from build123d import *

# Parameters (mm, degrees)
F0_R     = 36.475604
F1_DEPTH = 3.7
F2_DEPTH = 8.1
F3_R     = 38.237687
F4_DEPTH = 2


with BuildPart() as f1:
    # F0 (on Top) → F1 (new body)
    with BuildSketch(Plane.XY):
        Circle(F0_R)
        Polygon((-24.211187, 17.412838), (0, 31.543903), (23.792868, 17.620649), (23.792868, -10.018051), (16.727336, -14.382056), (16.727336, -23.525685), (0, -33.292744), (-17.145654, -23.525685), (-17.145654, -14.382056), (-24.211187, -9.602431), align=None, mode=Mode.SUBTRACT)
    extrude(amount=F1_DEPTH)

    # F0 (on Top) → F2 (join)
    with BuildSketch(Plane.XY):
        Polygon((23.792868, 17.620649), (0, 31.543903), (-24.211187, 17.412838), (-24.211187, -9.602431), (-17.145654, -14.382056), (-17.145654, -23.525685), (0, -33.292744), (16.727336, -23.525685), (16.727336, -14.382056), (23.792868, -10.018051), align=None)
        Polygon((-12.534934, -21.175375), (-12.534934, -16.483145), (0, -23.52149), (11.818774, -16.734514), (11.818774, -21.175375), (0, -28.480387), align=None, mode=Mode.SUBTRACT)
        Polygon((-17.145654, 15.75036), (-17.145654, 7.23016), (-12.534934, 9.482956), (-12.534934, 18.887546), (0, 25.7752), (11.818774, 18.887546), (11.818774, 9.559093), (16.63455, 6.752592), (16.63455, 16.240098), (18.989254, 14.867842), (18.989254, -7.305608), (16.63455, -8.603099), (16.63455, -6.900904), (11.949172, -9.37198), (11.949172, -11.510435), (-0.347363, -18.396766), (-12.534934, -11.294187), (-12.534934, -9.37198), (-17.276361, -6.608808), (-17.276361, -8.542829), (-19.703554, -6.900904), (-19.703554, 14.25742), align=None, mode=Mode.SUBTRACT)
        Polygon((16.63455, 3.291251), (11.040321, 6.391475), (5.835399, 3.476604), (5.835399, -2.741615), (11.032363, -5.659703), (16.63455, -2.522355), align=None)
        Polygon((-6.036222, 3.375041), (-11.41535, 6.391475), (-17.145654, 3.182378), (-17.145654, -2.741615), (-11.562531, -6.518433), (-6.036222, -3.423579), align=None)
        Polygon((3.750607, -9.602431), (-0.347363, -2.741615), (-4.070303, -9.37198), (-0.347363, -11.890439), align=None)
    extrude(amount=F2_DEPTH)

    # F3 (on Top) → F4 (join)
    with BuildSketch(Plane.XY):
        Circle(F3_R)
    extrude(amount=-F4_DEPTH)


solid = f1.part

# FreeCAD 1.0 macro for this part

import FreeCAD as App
import Part
import Sketcher

V = App.Vector
Q = App.Units.Quantity

doc = App.newDocument("Part")
params = doc.addObject("Spreadsheet::Sheet", "Params")
for row, (alias, value) in enumerate([
    ("pad1_length", "3.7 mm"),
    ("pad2_length", "8.1 mm"),
    ("pad3_length", "2 mm"),
], start=1):
    params.set(f"A{row}", alias)
    params.set(f"B{row}", "=" + value)
    params.setAlias(f"B{row}", alias)

body = doc.addObject("PartDesign::Body", "Body")
body.AllowCompound = True

# Sketch on XY plane
sketch1 = body.newObject("Sketcher::SketchObject", "Sketch")
sketch1.AttachmentSupport = (doc.getObject("XY_Plane"), [""])
sketch1.MapMode = "FlatFace"
sketch1.addGeometry([
    Part.Circle(V(0, 0, 0), V(0, 0, 1), 36.475604),  # 0
    Part.LineSegment(V(-24.211187, -9.602431, 0), V(-24.211187, 17.412838, 0)),  # 1
    Part.LineSegment(V(-24.211187, 17.412838, 0), V(0, 31.543903, 0)),  # 2
    Part.LineSegment(V(0, 31.543903, 0), V(23.792868, 17.620649, 0)),  # 3
    Part.LineSegment(V(23.792868, 17.620649, 0), V(23.792868, -10.018051, 0)),  # 4
    Part.LineSegment(V(23.792868, -10.018051, 0), V(16.727336, -14.382056, 0)),  # 5
    Part.LineSegment(V(16.727336, -14.382056, 0), V(16.727336, -23.525685, 0)),  # 6
    Part.LineSegment(V(16.727336, -23.525685, 0), V(0, -33.292744, 0)),  # 7
    Part.LineSegment(V(0, -33.292744, 0), V(-17.145654, -23.525685, 0)),  # 8
    Part.LineSegment(V(-17.145654, -23.525685, 0), V(-17.145654, -14.382056, 0)),  # 9
    Part.LineSegment(V(-17.145654, -14.382056, 0), V(-24.211187, -9.602431, 0)),  # 10
], False)
sketch1.addConstraint([
    Sketcher.Constraint("Coincident", 1, 2, 2, 1),
    Sketcher.Constraint("Coincident", 2, 2, 3, 1),
    Sketcher.Constraint("Coincident", 3, 2, 4, 1),
    Sketcher.Constraint("Coincident", 4, 2, 5, 1),
    Sketcher.Constraint("Coincident", 5, 2, 6, 1),
    Sketcher.Constraint("Coincident", 6, 2, 7, 1),
    Sketcher.Constraint("Coincident", 7, 2, 8, 1),
    Sketcher.Constraint("Coincident", 8, 2, 9, 1),
    Sketcher.Constraint("Coincident", 9, 2, 10, 1),
    Sketcher.Constraint("Coincident", 10, 2, 1, 1),
    Sketcher.Constraint("Vertical", 1),
    Sketcher.Constraint("Vertical", 4),
    Sketcher.Constraint("Vertical", 6),
    Sketcher.Constraint("Vertical", 9),
    Sketcher.Constraint("Coincident", 0, 3, -1, 1),
    Sketcher.Constraint("PointOnObject", 2, 2, -2),
    Sketcher.Constraint("PointOnObject", 7, 2, -2),
    Sketcher.Constraint("Horizontal", 6, 2, 8, 2),
    Sketcher.Constraint("Horizontal", 5, 2, 9, 2),
    Sketcher.Constraint("Diameter", 0, Q("72.951208 mm")),
    Sketcher.Constraint("DistanceY", 4, 2, 4, 1, Q("27.6387 mm")),
    Sketcher.Constraint("DistanceY", 1, 1, 1, 2, Q("27.015269 mm")),
    Sketcher.Constraint("DistanceY", 6, 2, 6, 1, Q("9.143629 mm")),
    Sketcher.Constraint("Distance", 7, Q("19.37006 mm")),
    Sketcher.Constraint("DistanceY", -1, 1, 1, 2, Q("17.412838 mm")),
    Sketcher.Constraint("DistanceY", -1, 1, 3, 2, Q("17.620649 mm")),
    Sketcher.Constraint("DistanceX", 5, 2, 4, 2, Q("7.065532 mm")),
    Sketcher.Constraint("DistanceY", 5, 2, 2, 2, Q("45.925959 mm")),
    Sketcher.Constraint("DistanceY", 7, 2, 6, 2, Q("9.767059 mm")),
    Sketcher.Constraint("DistanceX", 8, 2, 6, 2, Q("33.87299 mm")),
    Sketcher.Constraint("Distance", 2, Q("28.033348 mm")),
    Sketcher.Constraint("Distance", 3, Q("27.567328 mm")),
])
pad1 = body.newObject("PartDesign::Pad", "Pad")
pad1.Profile = sketch1
pad1.setExpression("Length", "Params.pad1_length")

# Sketch on XY plane
sketch2 = body.newObject("Sketcher::SketchObject", "Sketch001")
sketch2.AttachmentSupport = (doc.getObject("XY_Plane"), [""])
sketch2.MapMode = "FlatFace"
sketch2.addGeometry([
    Part.LineSegment(V(23.792868, 17.620649, 0), V(0, 31.543903, 0)),  # 0
    Part.LineSegment(V(0, 31.543903, 0), V(-24.211187, 17.412838, 0)),  # 1
    Part.LineSegment(V(-24.211187, 17.412838, 0), V(-24.211187, -9.602431, 0)),  # 2
    Part.LineSegment(V(-24.211187, -9.602431, 0), V(-17.145654, -14.382056, 0)),  # 3
    Part.LineSegment(V(-17.145654, -14.382056, 0), V(-17.145654, -23.525685, 0)),  # 4
    Part.LineSegment(V(-17.145654, -23.525685, 0), V(0, -33.292744, 0)),  # 5
    Part.LineSegment(V(0, -33.292744, 0), V(16.727336, -23.525685, 0)),  # 6
    Part.LineSegment(V(16.727336, -23.525685, 0), V(16.727336, -14.382056, 0)),  # 7
    Part.LineSegment(V(16.727336, -14.382056, 0), V(23.792868, -10.018051, 0)),  # 8
    Part.LineSegment(V(23.792868, -10.018051, 0), V(23.792868, 17.620649, 0)),  # 9
    Part.LineSegment(V(0, -28.480387, 0), V(-12.534934, -21.175375, 0)),  # 10
    Part.LineSegment(V(-12.534934, -21.175375, 0), V(-12.534934, -16.483145, 0)),  # 11
    Part.LineSegment(V(-12.534934, -16.483145, 0), V(0, -23.52149, 0)),  # 12
    Part.LineSegment(V(0, -23.52149, 0), V(11.818774, -16.734514, 0)),  # 13
    Part.LineSegment(V(11.818774, -16.734514, 0), V(11.818774, -21.175375, 0)),  # 14
    Part.LineSegment(V(11.818774, -21.175375, 0), V(0, -28.480387, 0)),  # 15
    Part.LineSegment(V(-19.703554, 14.25742, 0), V(-17.145654, 15.75036, 0)),  # 16
    Part.LineSegment(V(-17.145654, 15.75036, 0), V(-17.145654, 7.23016, 0)),  # 17
    Part.LineSegment(V(-17.145654, 7.23016, 0), V(-12.534934, 9.482956, 0)),  # 18
    Part.LineSegment(V(-12.534934, 9.482956, 0), V(-12.534934, 18.887546, 0)),  # 19
    Part.LineSegment(V(-12.534934, 18.887546, 0), V(0, 25.7752, 0)),  # 20
    Part.LineSegment(V(0, 25.7752, 0), V(11.818774, 18.887546, 0)),  # 21
    Part.LineSegment(V(11.818774, 18.887546, 0), V(11.818774, 9.559093, 0)),  # 22
    Part.LineSegment(V(11.818774, 9.559093, 0), V(16.63455, 6.752592, 0)),  # 23
    Part.LineSegment(V(16.63455, 6.752592, 0), V(16.63455, 16.240098, 0)),  # 24
    Part.LineSegment(V(16.63455, 16.240098, 0), V(18.989254, 14.867842, 0)),  # 25
    Part.LineSegment(V(18.989254, 14.867842, 0), V(18.989254, -7.305608, 0)),  # 26
    Part.LineSegment(V(18.989254, -7.305608, 0), V(16.63455, -8.603099, 0)),  # 27
    Part.LineSegment(V(16.63455, -8.603099, 0), V(16.63455, -6.900904, 0)),  # 28
    Part.LineSegment(V(16.63455, -6.900904, 0), V(11.949172, -9.37198, 0)),  # 29
    Part.LineSegment(V(11.949172, -9.37198, 0), V(11.949172, -11.510435, 0)),  # 30
    Part.LineSegment(V(11.949172, -11.510435, 0), V(-0.347363, -18.396766, 0)),  # 31
    Part.LineSegment(V(-0.347363, -18.396766, 0), V(-12.534934, -11.294187, 0)),  # 32
    Part.LineSegment(V(-12.534934, -11.294187, 0), V(-12.534934, -9.37198, 0)),  # 33
    Part.LineSegment(V(-12.534934, -9.37198, 0), V(-17.276361, -6.608808, 0)),  # 34
    Part.LineSegment(V(-17.276361, -6.608808, 0), V(-17.276361, -8.542829, 0)),  # 35
    Part.LineSegment(V(-17.276361, -8.542829, 0), V(-19.703554, -6.900904, 0)),  # 36
    Part.LineSegment(V(-19.703554, -6.900904, 0), V(-19.703554, 14.25742, 0)),  # 37
    Part.LineSegment(V(16.63455, 3.291251, 0), V(11.040321, 6.391475, 0)),  # 38
    Part.LineSegment(V(11.040321, 6.391475, 0), V(5.835399, 3.476604, 0)),  # 39
    Part.LineSegment(V(5.835399, 3.476604, 0), V(5.835399, -2.741615, 0)),  # 40
    Part.LineSegment(V(5.835399, -2.741615, 0), V(11.032363, -5.659703, 0)),  # 41
    Part.LineSegment(V(11.032363, -5.659703, 0), V(16.63455, -2.522355, 0)),  # 42
    Part.LineSegment(V(16.63455, -2.522355, 0), V(16.63455, 3.291251, 0)),  # 43
    Part.LineSegment(V(-6.036222, 3.375041, 0), V(-11.41535, 6.391475, 0)),  # 44
    Part.LineSegment(V(-11.41535, 6.391475, 0), V(-17.145654, 3.182378, 0)),  # 45
    Part.LineSegment(V(-17.145654, 3.182378, 0), V(-17.145654, -2.741615, 0)),  # 46
    Part.LineSegment(V(-17.145654, -2.741615, 0), V(-11.562531, -6.518433, 0)),  # 47
    Part.LineSegment(V(-11.562531, -6.518433, 0), V(-6.036222, -3.423579, 0)),  # 48
    Part.LineSegment(V(-6.036222, -3.423579, 0), V(-6.036222, 3.375041, 0)),  # 49
    Part.LineSegment(V(3.750607, -9.602431, 0), V(-0.347363, -2.741615, 0)),  # 50
    Part.LineSegment(V(-0.347363, -2.741615, 0), V(-4.070303, -9.37198, 0)),  # 51
    Part.LineSegment(V(-4.070303, -9.37198, 0), V(-0.347363, -11.890439, 0)),  # 52
    Part.LineSegment(V(-0.347363, -11.890439, 0), V(3.750607, -9.602431, 0)),  # 53
], False)
sketch2.addConstraint([
    Sketcher.Constraint("Coincident", 0, 2, 1, 1),
    Sketcher.Constraint("Coincident", 1, 2, 2, 1),
    Sketcher.Constraint("Coincident", 2, 2, 3, 1),
    Sketcher.Constraint("Coincident", 3, 2, 4, 1),
    Sketcher.Constraint("Coincident", 4, 2, 5, 1),
    Sketcher.Constraint("Coincident", 5, 2, 6, 1),
    Sketcher.Constraint("Coincident", 6, 2, 7, 1),
    Sketcher.Constraint("Coincident", 7, 2, 8, 1),
    Sketcher.Constraint("Coincident", 8, 2, 9, 1),
    Sketcher.Constraint("Coincident", 9, 2, 0, 1),
    Sketcher.Constraint("Coincident", 10, 2, 11, 1),
    Sketcher.Constraint("Coincident", 11, 2, 12, 1),
    Sketcher.Constraint("Coincident", 12, 2, 13, 1),
    Sketcher.Constraint("Coincident", 13, 2, 14, 1),
    Sketcher.Constraint("Coincident", 14, 2, 15, 1),
    Sketcher.Constraint("Coincident", 15, 2, 10, 1),
    Sketcher.Constraint("Coincident", 16, 2, 17, 1),
    Sketcher.Constraint("Coincident", 17, 2, 18, 1),
    Sketcher.Constraint("Coincident", 18, 2, 19, 1),
    Sketcher.Constraint("Coincident", 19, 2, 20, 1),
    Sketcher.Constraint("Coincident", 20, 2, 21, 1),
    Sketcher.Constraint("Coincident", 21, 2, 22, 1),
    Sketcher.Constraint("Coincident", 22, 2, 23, 1),
    Sketcher.Constraint("Coincident", 23, 2, 24, 1),
    Sketcher.Constraint("Coincident", 24, 2, 25, 1),
    Sketcher.Constraint("Coincident", 25, 2, 26, 1),
    Sketcher.Constraint("Coincident", 26, 2, 27, 1),
    Sketcher.Constraint("Coincident", 27, 2, 28, 1),
    Sketcher.Constraint("Coincident", 28, 2, 29, 1),
    Sketcher.Constraint("Coincident", 29, 2, 30, 1),
    Sketcher.Constraint("Coincident", 30, 2, 31, 1),
    Sketcher.Constraint("Coincident", 31, 2, 32, 1),
    Sketcher.Constraint("Coincident", 32, 2, 33, 1),
    Sketcher.Constraint("Coincident", 33, 2, 34, 1),
    Sketcher.Constraint("Coincident", 34, 2, 35, 1),
    Sketcher.Constraint("Coincident", 35, 2, 36, 1),
    Sketcher.Constraint("Coincident", 36, 2, 37, 1),
    Sketcher.Constraint("Coincident", 37, 2, 16, 1),
    Sketcher.Constraint("Coincident", 38, 2, 39, 1),
    Sketcher.Constraint("Coincident", 39, 2, 40, 1),
    Sketcher.Constraint("Coincident", 40, 2, 41, 1),
    Sketcher.Constraint("Coincident", 41, 2, 42, 1),
    Sketcher.Constraint("Coincident", 42, 2, 43, 1),
    Sketcher.Constraint("Coincident", 43, 2, 38, 1),
    Sketcher.Constraint("Coincident", 44, 2, 45, 1),
    Sketcher.Constraint("Coincident", 45, 2, 46, 1),
    Sketcher.Constraint("Coincident", 46, 2, 47, 1),
    Sketcher.Constraint("Coincident", 47, 2, 48, 1),
    Sketcher.Constraint("Coincident", 48, 2, 49, 1),
    Sketcher.Constraint("Coincident", 49, 2, 44, 1),
    Sketcher.Constraint("Coincident", 50, 2, 51, 1),
    Sketcher.Constraint("Coincident", 51, 2, 52, 1),
    Sketcher.Constraint("Coincident", 52, 2, 53, 1),
    Sketcher.Constraint("Coincident", 53, 2, 50, 1),
    Sketcher.Constraint("Vertical", 2),
    Sketcher.Constraint("Vertical", 4),
    Sketcher.Constraint("Vertical", 7),
    Sketcher.Constraint("Vertical", 9),
    Sketcher.Constraint("Vertical", 11),
    Sketcher.Constraint("Vertical", 14),
    Sketcher.Constraint("Vertical", 17),
    Sketcher.Constraint("Vertical", 19),
    Sketcher.Constraint("Vertical", 22),
    Sketcher.Constraint("Vertical", 24),
    Sketcher.Constraint("Vertical", 26),
    Sketcher.Constraint("Vertical", 28),
    Sketcher.Constraint("Vertical", 30),
    Sketcher.Constraint("Vertical", 33),
    Sketcher.Constraint("Vertical", 35),
    Sketcher.Constraint("Vertical", 37),
    Sketcher.Constraint("Vertical", 40),
    Sketcher.Constraint("Vertical", 43),
    Sketcher.Constraint("Vertical", 46),
    Sketcher.Constraint("Vertical", 49),
    Sketcher.Constraint("PointOnObject", 0, 2, -2),
    Sketcher.Constraint("PointOnObject", 5, 2, -2),
    Sketcher.Constraint("PointOnObject", 12, 2, -2),
    Sketcher.Constraint("PointOnObject", 15, 2, -2),
    Sketcher.Constraint("PointOnObject", 20, 2, -2),
    Sketcher.Constraint("DistanceY", 9, 1, 9, 2, Q("27.6387 mm")),
    Sketcher.Constraint("DistanceY", 17, 2, 17, 1, Q("8.5202 mm")),
    Sketcher.Constraint("Distance", 20, Q("14.302599 mm")),
    Sketcher.Constraint("Distance", 21, Q("13.679298 mm")),
    Sketcher.Constraint("Distance", 45, Q("6.5677 mm")),
    Sketcher.Constraint("DistanceY", 2, 2, 2, 1, Q("27.015269 mm")),
    Sketcher.Constraint("DistanceY", 4, 2, 4, 1, Q("9.143629 mm")),
    Sketcher.Constraint("DistanceY", 7, 1, 7, 2, Q("9.143629 mm")),
    Sketcher.Constraint("DistanceY", 11, 1, 11, 2, Q("4.69223 mm")),
    Sketcher.Constraint("DistanceY", 14, 2, 14, 1, Q("4.440861 mm")),
    Sketcher.Constraint("DistanceY", 19, 1, 19, 2, Q("9.40459 mm")),
    Sketcher.Constraint("DistanceY", 26, 2, 26, 1, Q("22.17345 mm")),
    Sketcher.Constraint("DistanceY", 35, 2, 35, 1, Q("1.934021 mm")),
    Sketcher.Constraint("DistanceY", 40, 2, 40, 1, Q("6.218219 mm")),
    Sketcher.Constraint("DistanceY", 49, 1, 49, 2, Q("6.79862 mm")),
    Sketcher.Constraint("DistanceY", -1, 1, 20, 2, Q("25.7752 mm")),
    Sketcher.Constraint("DistanceY", 27, 2, -1, 1, Q("8.603099 mm")),
    Sketcher.Constraint("DistanceX", -1, 1, 39, 2, Q("5.835399 mm")),
    Sketcher.Constraint("DistanceY", 5, 2, 11, 2, Q("16.809599 mm")),
    Sketcher.Constraint("DistanceY", 23, 2, 22, 2, Q("2.806501 mm")),
    Sketcher.Constraint("DistanceY", 26, 2, 23, 2, Q("14.0582 mm")),
    Sketcher.Constraint("DistanceX", 13, 2, 29, 2, Q("0.130398 mm")),
    Sketcher.Constraint("DistanceY", 2, 2, 35, 2, Q("1.059602 mm")),
    Sketcher.Constraint("DistanceX", 36, 2, 3, 2, Q("2.5579 mm")),
    Sketcher.Constraint("DistanceX", 37, 2, 16, 2, Q("2.5579 mm")),
    Sketcher.Constraint("DistanceY", 28, 2, 41, 2, Q("1.241201 mm")),
    Sketcher.Constraint("DistanceX", 36, 2, 45, 2, Q("2.5579 mm")),
    Sketcher.Constraint("DistanceY", 33, 2, 48, 2, Q("5.948401 mm")),
    Sketcher.Constraint("DistanceY", 51, 2, 48, 2, Q("5.948401 mm")),
    Sketcher.Constraint("Distance", 6, Q("19.37006 mm")),
    Sketcher.Constraint("Distance", 15, Q("13.894122 mm")),
    Sketcher.Constraint("Distance", 16, Q("2.961709 mm")),
    Sketcher.Constraint("Distance", 18, Q("5.13165 mm")),
    Sketcher.Constraint("Distance", 23, Q("5.573881 mm")),
    Sketcher.Constraint("Distance", 32, Q("14.106152 mm")),
    Sketcher.Constraint("Distance", 36, Q("2.93039 mm")),
    Sketcher.Constraint("Distance", 38, Q("6.395841 mm")),
    Sketcher.Constraint("Distance", 39, Q("5.965542 mm")),
    Sketcher.Constraint("Distance", 42, Q("6.420861 mm")),
    Sketcher.Constraint("Distance", 51, Q("7.604079 mm")),
    Sketcher.Constraint("DistanceY", 22, 2, 22, 1, Q("9.328453 mm")),
    Sketcher.Constraint("DistanceY", 24, 1, 24, 2, Q("9.487506 mm")),
    Sketcher.Constraint("DistanceY", 28, 1, 28, 2, Q("1.702195 mm")),
    Sketcher.Constraint("DistanceY", 30, 2, 30, 1, Q("2.138455 mm")),
    Sketcher.Constraint("DistanceY", 33, 1, 33, 2, Q("1.922207 mm")),
    Sketcher.Constraint("DistanceY", 37, 1, 37, 2, Q("21.158324 mm")),
    Sketcher.Constraint("DistanceY", 43, 1, 43, 2, Q("5.813606 mm")),
    Sketcher.Constraint("DistanceY", 46, 2, 46, 1, Q("5.923993 mm")),
    Sketcher.Constraint("DistanceY", -1, 1, 1, 2, Q("17.412838 mm")),
    Sketcher.Constraint("DistanceY", 8, 2, -1, 1, Q("10.018051 mm")),
    Sketcher.Constraint("DistanceY", 12, 2, -1, 1, Q("23.52149 mm")),
    Sketcher.Constraint("DistanceY", -1, 1, 16, 2, Q("15.75036 mm")),
    Sketcher.Constraint("DistanceX", -1, 1, 23, 2, Q("16.63455 mm")),
    Sketcher.Constraint("DistanceX", -1, 1, 27, 2, Q("16.63455 mm")),
    Sketcher.Constraint("DistanceY", 29, 2, -1, 1, Q("9.37198 mm")),
    Sketcher.Constraint("DistanceY", 33, 2, -1, 1, Q("9.37198 mm")),
    Sketcher.Constraint("DistanceX", 34, 2, -1, 1, Q("17.276361 mm")),
    Sketcher.Constraint("DistanceX", -1, 1, 38, 2, Q("11.040321 mm")),
    Sketcher.Constraint("DistanceX", -1, 1, 42, 2, Q("16.63455 mm")),
    Sketcher.Constraint("DistanceY", -1, 1, 43, 2, Q("3.291251 mm")),
    Sketcher.Constraint("DistanceX", 44, 2, -1, 1, Q("11.41535 mm")),
    Sketcher.Constraint("DistanceX", 47, 2, -1, 1, Q("11.562531 mm")),
    Sketcher.Constraint("DistanceY", 52, 2, -1, 1, Q("11.890439 mm")),
    Sketcher.Constraint("DistanceY", 53, 2, -1, 1, Q("9.602431 mm")),
    Sketcher.Constraint("DistanceY", 3, 2, 0, 2, Q("45.925959 mm")),
    Sketcher.Constraint("DistanceY", 5, 2, 4, 2, Q("9.767059 mm")),
    Sketcher.Constraint("DistanceY", 5, 2, 6, 2, Q("9.767059 mm")),
    Sketcher.Constraint("DistanceX", 7, 2, 8, 2, Q("7.065532 mm")),
    Sketcher.Constraint("DistanceX", 4, 2, 10, 2, Q("4.61072 mm")),
    Sketcher.Constraint("DistanceY", 13, 2, 7, 2, Q("2.352458 mm")),
    Sketcher.Constraint("DistanceY", 3, 2, 18, 2, Q("23.865012 mm")),
    Sketcher.Constraint("DistanceX", 21, 2, 25, 2, Q("7.17048 mm")),
    Sketcher.Constraint("DistanceX", 13, 2, 26, 2, Q("7.17048 mm")),
    Sketcher.Constraint("DistanceY", 15, 2, 31, 2, Q("10.083621 mm")),
    Sketcher.Constraint("DistanceX", 11, 2, 31, 2, Q("12.187571 mm")),
    Sketcher.Constraint("DistanceY", 44, 2, 18, 2, Q("3.091481 mm")),
    Sketcher.Constraint("DistanceY", 47, 2, 46, 2, Q("3.776818 mm")),
    Sketcher.Constraint("DistanceX", 47, 2, 48, 2, Q("5.526309 mm")),
    Sketcher.Constraint("DistanceX", 48, 2, 50, 2, Q("5.688859 mm")),
    Sketcher.Constraint("DistanceY", 50, 2, 39, 2, Q("6.218219 mm")),
    Sketcher.Constraint("DistanceX", 51, 2, 52, 2, Q("3.72294 mm")),
    Sketcher.Constraint("DistanceX", 52, 2, 53, 2, Q("4.09797 mm")),
    Sketcher.Constraint("Distance", 1, Q("28.033348 mm")),
])
pad2 = body.newObject("PartDesign::Pad", "Pad001")
pad2.Profile = sketch2
pad2.setExpression("Length", "Params.pad2_length")

# Sketch on XY plane
sketch3 = body.newObject("Sketcher::SketchObject", "Sketch002")
sketch3.AttachmentSupport = (doc.getObject("XY_Plane"), [""])
sketch3.MapMode = "FlatFace"
sketch3.addGeometry(Part.Circle(V(0, 0, 0), V(0, 0, 1), 38.237687), False)
sketch3.addConstraint([
    Sketcher.Constraint("Coincident", 0, 3, -1, 1),
    Sketcher.Constraint("Diameter", 0, Q("76.475374 mm")),
])
pad3 = body.newObject("PartDesign::Pad", "Pad002")
pad3.Profile = sketch3
pad3.setExpression("Length", "Params.pad3_length")
pad3.Reversed = True

doc.recompute()
